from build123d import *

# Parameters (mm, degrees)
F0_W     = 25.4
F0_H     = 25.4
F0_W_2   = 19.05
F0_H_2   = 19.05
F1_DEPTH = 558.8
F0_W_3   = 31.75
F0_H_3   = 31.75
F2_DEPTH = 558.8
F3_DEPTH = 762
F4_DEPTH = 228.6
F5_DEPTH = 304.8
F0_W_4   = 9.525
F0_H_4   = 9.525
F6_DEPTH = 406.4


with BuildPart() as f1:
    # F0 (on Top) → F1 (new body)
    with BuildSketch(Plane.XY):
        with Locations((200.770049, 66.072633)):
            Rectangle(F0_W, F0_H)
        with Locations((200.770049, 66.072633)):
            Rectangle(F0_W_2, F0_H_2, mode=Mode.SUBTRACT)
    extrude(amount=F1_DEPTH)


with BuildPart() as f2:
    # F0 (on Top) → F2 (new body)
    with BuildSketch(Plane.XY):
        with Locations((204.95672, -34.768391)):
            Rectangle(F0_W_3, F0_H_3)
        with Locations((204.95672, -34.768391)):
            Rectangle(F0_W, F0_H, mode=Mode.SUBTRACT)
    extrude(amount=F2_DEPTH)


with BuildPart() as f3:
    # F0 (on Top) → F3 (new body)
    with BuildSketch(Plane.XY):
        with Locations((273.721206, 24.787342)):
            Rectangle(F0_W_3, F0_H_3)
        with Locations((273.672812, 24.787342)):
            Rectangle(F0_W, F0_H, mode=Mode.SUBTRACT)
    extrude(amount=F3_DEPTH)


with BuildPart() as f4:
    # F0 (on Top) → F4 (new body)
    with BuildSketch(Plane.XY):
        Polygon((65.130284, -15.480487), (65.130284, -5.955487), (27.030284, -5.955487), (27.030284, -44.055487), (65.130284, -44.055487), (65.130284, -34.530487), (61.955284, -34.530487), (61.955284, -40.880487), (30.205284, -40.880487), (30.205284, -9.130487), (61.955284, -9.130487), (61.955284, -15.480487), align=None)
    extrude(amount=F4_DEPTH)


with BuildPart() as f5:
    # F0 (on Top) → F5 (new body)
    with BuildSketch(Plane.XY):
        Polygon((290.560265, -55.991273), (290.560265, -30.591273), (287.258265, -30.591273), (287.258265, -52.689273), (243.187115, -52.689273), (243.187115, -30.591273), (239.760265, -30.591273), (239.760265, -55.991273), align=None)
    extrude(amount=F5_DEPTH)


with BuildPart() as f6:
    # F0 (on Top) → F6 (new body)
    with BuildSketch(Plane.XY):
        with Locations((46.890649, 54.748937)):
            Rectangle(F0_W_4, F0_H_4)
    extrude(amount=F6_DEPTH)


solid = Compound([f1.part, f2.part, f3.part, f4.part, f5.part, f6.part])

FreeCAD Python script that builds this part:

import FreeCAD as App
import Part
import Sketcher

V = App.Vector
Q = App.Units.Quantity

doc = App.newDocument("Part")
params = doc.addObject("Spreadsheet::Sheet", "Params")
for row, (alias, value) in enumerate([
    ("sketch1_width", "1 in"),
    ("sketch1_width2", "0.75 in"),
    ("pad1_length", "22 in"),
    ("sketch2_width", "1 in"),
    ("sketch2_width2", "1.25 in"),
    ("pad2_length", "22 in"),
    ("sketch3_width", "1 in"),
    ("sketch3_width2", "1.25 in"),
    ("pad3_length", "30 in"),
    ("sketch4_width", "1.5 in"),
    ("sketch4_width2", "1.25 in"),
    ("sketch4_width3", "0.125 in"),
    ("pad4_length", "9 in"),
    ("sketch5_width", "2 in"),
    ("sketch5_height", "1 in"),
    ("sketch5_width2", "0.13 in"),
    ("sketch5_height2", "0.87 in"),
    ("pad5_length", "12 in"),
    ("sketch6_width", "0.375 in"),
    ("pad6_length", "16 in"),
], start=1):
    params.set(f"A{row}", alias)
    params.set(f"B{row}", "=" + value)
    params.setAlias(f"B{row}", alias)

body = doc.addObject("PartDesign::Body", "Body")

# Sketch on XY plane
sketch1 = body.newObject("Sketcher::SketchObject", "Sketch")
sketch1.AttachmentSupport = (doc.getObject("XY_Plane"), [""])
sketch1.MapMode = "FlatFace"
sketch1.addGeometry(Part.LineSegment(V(188, 79, 0), V(188, 53, 0)), False)
sketch1.addGeometry(Part.LineSegment(V(188, 53, 0), V(213, 53, 0)), False)
sketch1.addGeometry(Part.LineSegment(V(213, 53, 0), V(213, 79, 0)), False)
sketch1.addGeometry(Part.LineSegment(V(213, 79, 0), V(188, 79, 0)), False)
sketch1.addGeometry(Part.LineSegment(V(210, 57, 0), V(191, 57, 0)), False)
sketch1.addGeometry(Part.LineSegment(V(191, 57, 0), V(191, 76, 0)), False)
sketch1.addGeometry(Part.LineSegment(V(191, 76, 0), V(210, 76, 0)), False)
sketch1.addGeometry(Part.LineSegment(V(210, 76, 0), V(210, 57, 0)), False)
sketch1.addConstraint(Sketcher.Constraint("Coincident", 0, 2, 1, 1))
sketch1.addConstraint(Sketcher.Constraint("Coincident", 1, 2, 2, 1))
sketch1.addConstraint(Sketcher.Constraint("Coincident", 2, 2, 3, 1))
sketch1.addConstraint(Sketcher.Constraint("Coincident", 3, 2, 0, 1))
sketch1.addConstraint(Sketcher.Constraint("Coincident", 4, 2, 5, 1))
sketch1.addConstraint(Sketcher.Constraint("Coincident", 5, 2, 6, 1))
sketch1.addConstraint(Sketcher.Constraint("Coincident", 6, 2, 7, 1))
sketch1.addConstraint(Sketcher.Constraint("Coincident", 7, 2, 4, 1))
sketch1.addConstraint(Sketcher.Constraint("Vertical", 0))
sketch1.addConstraint(Sketcher.Constraint("Horizontal", 1))
sketch1.addConstraint(Sketcher.Constraint("Vertical", 2))
sketch1.addConstraint(Sketcher.Constraint("Horizontal", 3))
sketch1.addConstraint(Sketcher.Constraint("Horizontal", 4))
sketch1.addConstraint(Sketcher.Constraint("Vertical", 5))
sketch1.addConstraint(Sketcher.Constraint("Horizontal", 6))
sketch1.addConstraint(Sketcher.Constraint("Vertical", 7))
sketch1.addConstraint(Sketcher.Constraint("Equal", 3, 0))
sketch1.addConstraint(Sketcher.Constraint("Equal", 6, 5))
sketch1.addConstraint(Sketcher.Constraint("DistanceX", 1, 1, 1, 2, Q("1 in")))
sketch1.addConstraint(Sketcher.Constraint("DistanceX", 4, 2, 4, 1, Q("0.75 in")))
sketch1.addConstraint(Sketcher.Constraint("DistanceX", 0, 2, 4, 2, Q("0.125 in")))
sketch1.addConstraint(Sketcher.Constraint("DistanceY", 0, 2, 4, 2, Q("0.125 in")))
sketch1.addConstraint(Sketcher.Constraint("DistanceX", -1, 1, 0, 2, Q("188.070049 mm")))
sketch1.addConstraint(Sketcher.Constraint("DistanceY", -1, 1, 0, 2, Q("53.372633 mm")))
sketch1.setExpression("Constraints[18]", "Params.sketch1_width")
sketch1.setExpression("Constraints[19]", "Params.sketch1_width2")
pad1 = body.newObject("PartDesign::Pad", "Pad")
pad1.Profile = sketch1
pad1.setExpression("Length", "Params.pad1_length")
body2 = doc.addObject("PartDesign::Body", "Body001")

# Sketch on XY plane
sketch2 = body2.newObject("Sketcher::SketchObject", "Sketch001")
sketch2.AttachmentSupport = (doc.getObject("XY_Plane001"), [""])
sketch2.MapMode = "FlatFace"
sketch2.addGeometry(Part.LineSegment(V(189, -19, 0), V(189, -51, 0)), False)
sketch2.addGeometry(Part.LineSegment(V(189, -51, 0), V(221, -51, 0)), False)
sketch2.addGeometry(Part.LineSegment(V(221, -51, 0), V(221, -19, 0)), False)
sketch2.addGeometry(Part.LineSegment(V(221, -19, 0), V(189, -19, 0)), False)
sketch2.addGeometry(Part.LineSegment(V(218, -47, 0), V(192, -47, 0)), False)
sketch2.addGeometry(Part.LineSegment(V(192, -47, 0), V(192, -22, 0)), False)
sketch2.addGeometry(Part.LineSegment(V(192, -22, 0), V(218, -22, 0)), False)
sketch2.addGeometry(Part.LineSegment(V(218, -22, 0), V(218, -47, 0)), False)
sketch2.addConstraint(Sketcher.Constraint("Coincident", 0, 2, 1, 1))
sketch2.addConstraint(Sketcher.Constraint("Coincident", 1, 2, 2, 1))
sketch2.addConstraint(Sketcher.Constraint("Coincident", 2, 2, 3, 1))
sketch2.addConstraint(Sketcher.Constraint("Coincident", 3, 2, 0, 1))
sketch2.addConstraint(Sketcher.Constraint("Coincident", 4, 2, 5, 1))
sketch2.addConstraint(Sketcher.Constraint("Coincident", 5, 2, 6, 1))
sketch2.addConstraint(Sketcher.Constraint("Coincident", 6, 2, 7, 1))
sketch2.addConstraint(Sketcher.Constraint("Coincident", 7, 2, 4, 1))
sketch2.addConstraint(Sketcher.Constraint("Vertical", 0))
sketch2.addConstraint(Sketcher.Constraint("Horizontal", 1))
sketch2.addConstraint(Sketcher.Constraint("Vertical", 2))
sketch2.addConstraint(Sketcher.Constraint("Horizontal", 3))
sketch2.addConstraint(Sketcher.Constraint("Horizontal", 4))
sketch2.addConstraint(Sketcher.Constraint("Vertical", 5))
sketch2.addConstraint(Sketcher.Constraint("Horizontal", 6))
sketch2.addConstraint(Sketcher.Constraint("Vertical", 7))
sketch2.addConstraint(Sketcher.Constraint("Equal", 3, 0))
sketch2.addConstraint(Sketcher.Constraint("Equal", 6, 5))
sketch2.addConstraint(Sketcher.Constraint("DistanceX", 4, 2, 4, 1, Q("1 in")))
sketch2.addConstraint(Sketcher.Constraint("DistanceX", 1, 1, 1, 2, Q("1.25 in")))
sketch2.addConstraint(Sketcher.Constraint("DistanceX", 0, 2, 4, 2, Q("0.125 in")))
sketch2.addConstraint(Sketcher.Constraint("DistanceY", 0, 2, 4, 2, Q("0.125 in")))
sketch2.addConstraint(Sketcher.Constraint("DistanceX", -1, 1, 0, 2, Q("189.08172 mm")))
sketch2.addConstraint(Sketcher.Constraint("DistanceY", 0, 2, -1, 1, Q("50.643391 mm")))
sketch2.setExpression("Constraints[18]", "Params.sketch2_width")
sketch2.setExpression("Constraints[19]", "Params.sketch2_width2")
pad2 = body2.newObject("PartDesign::Pad", "Pad001")
pad2.Profile = sketch2
pad2.setExpression("Length", "Params.pad2_length")
body3 = doc.addObject("PartDesign::Body", "Body002")

# Sketch on XY plane
sketch3 = body3.newObject("Sketcher::SketchObject", "Sketch002")
sketch3.AttachmentSupport = (doc.getObject("XY_Plane002"), [""])
sketch3.MapMode = "FlatFace"
sketch3.addGeometry(Part.LineSegment(V(258, 41, 0), V(258, 9, 0)), False)
sketch3.addGeometry(Part.LineSegment(V(258, 9, 0), V(290, 9, 0)), False)
sketch3.addGeometry(Part.LineSegment(V(290, 9, 0), V(290, 41, 0)), False)
sketch3.addGeometry(Part.LineSegment(V(290, 41, 0), V(258, 41, 0)), False)
sketch3.addGeometry(Part.LineSegment(V(286, 12, 0), V(261, 12, 0)), False)
sketch3.addGeometry(Part.LineSegment(V(261, 12, 0), V(261, 37, 0)), False)
sketch3.addGeometry(Part.LineSegment(V(261, 37, 0), V(286, 37, 0)), False)
sketch3.addGeometry(Part.LineSegment(V(286, 37, 0), V(286, 12, 0)), False)
sketch3.addConstraint(Sketcher.Constraint("Coincident", 0, 2, 1, 1))
sketch3.addConstraint(Sketcher.Constraint("Coincident", 1, 2, 2, 1))
sketch3.addConstraint(Sketcher.Constraint("Coincident", 2, 2, 3, 1))
sketch3.addConstraint(Sketcher.Constraint("Coincident", 3, 2, 0, 1))
sketch3.addConstraint(Sketcher.Constraint("Coincident", 4, 2, 5, 1))
sketch3.addConstraint(Sketcher.Constraint("Coincident", 5, 2, 6, 1))
sketch3.addConstraint(Sketcher.Constraint("Coincident", 6, 2, 7, 1))
sketch3.addConstraint(Sketcher.Constraint("Coincident", 7, 2, 4, 1))
sketch3.addConstraint(Sketcher.Constraint("Vertical", 0))
sketch3.addConstraint(Sketcher.Constraint("Horizontal", 1))
sketch3.addConstraint(Sketcher.Constraint("Vertical", 2))
sketch3.addConstraint(Sketcher.Constraint("Horizontal", 3))
sketch3.addConstraint(Sketcher.Constraint("Horizontal", 4))
sketch3.addConstraint(Sketcher.Constraint("Vertical", 5))
sketch3.addConstraint(Sketcher.Constraint("Horizontal", 6))
sketch3.addConstraint(Sketcher.Constraint("Vertical", 7))
sketch3.addConstraint(Sketcher.Constraint("Equal", 3, 0))
sketch3.addConstraint(Sketcher.Constraint("Equal", 6, 5))
sketch3.addConstraint(Sketcher.Constraint("DistanceX", 4, 2, 4, 1, Q("1 in")))
sketch3.addConstraint(Sketcher.Constraint("DistanceX", 1, 1, 1, 2, Q("1.25 in")))
sketch3.addConstraint(Sketcher.Constraint("DistanceY", 0, 2, 4, 2, Q("0.125 in")))
sketch3.addConstraint(Sketcher.Constraint("DistanceX", -1, 1, 4, 2, Q("260.972812 mm")))
sketch3.addConstraint(Sketcher.Constraint("DistanceY", -1, 1, 5, 2, Q("37.487342 mm")))
sketch3.addConstraint(Sketcher.Constraint("DistanceX", -1, 1, 0, 2, Q("257.846206 mm")))
sketch3.setExpression("Constraints[18]", "Params.sketch3_width")
sketch3.setExpression("Constraints[19]", "Params.sketch3_width2")
pad3 = body3.newObject("PartDesign::Pad", "Pad002")
pad3.Profile = sketch3
pad3.setExpression("Length", "Params.pad3_length")
body4 = doc.addObject("PartDesign::Body", "Body003")

# Sketch on XY plane
sketch4 = body4.newObject("Sketcher::SketchObject", "Sketch003")
sketch4.AttachmentSupport = (doc.getObject("XY_Plane003"), [""])
sketch4.MapMode = "FlatFace"
sketch4.addGeometry(Part.LineSegment(V(65.1, -15.5, 0), V(65.1, -6, 0)), False)
sketch4.addGeometry(Part.LineSegment(V(65.1, -6, 0), V(27, -6, 0)), False)
sketch4.addGeometry(Part.LineSegment(V(27, -6, 0), V(27, -44.1, 0)), False)
sketch4.addGeometry(Part.LineSegment(V(27, -44.1, 0), V(65.1, -44.1, 0)), False)
sketch4.addGeometry(Part.LineSegment(V(65.1, -44.1, 0), V(65.1, -34.5, 0)), False)
sketch4.addGeometry(Part.LineSegment(V(65.1, -34.5, 0), V(62, -34.5, 0)), False)
sketch4.addGeometry(Part.LineSegment(V(62, -34.5, 0), V(62, -40.9, 0)), False)
sketch4.addGeometry(Part.LineSegment(V(62, -40.9, 0), V(30.2, -40.9, 0)), False)
sketch4.addGeometry(Part.LineSegment(V(30.2, -40.9, 0), V(30.2, -9.1, 0)), False)
sketch4.addGeometry(Part.LineSegment(V(30.2, -9.1, 0), V(62, -9.1, 0)), False)
sketch4.addGeometry(Part.LineSegment(V(62, -9.1, 0), V(62, -15.5, 0)), False)
sketch4.addGeometry(Part.LineSegment(V(62, -15.5, 0), V(65.1, -15.5, 0)), False)
sketch4.addConstraint(Sketcher.Constraint("Coincident", 0, 2, 1, 1))
sketch4.addConstraint(Sketcher.Constraint("Coincident", 1, 2, 2, 1))
sketch4.addConstraint(Sketcher.Constraint("Coincident", 2, 2, 3, 1))
sketch4.addConstraint(Sketcher.Constraint("Coincident", 3, 2, 4, 1))
sketch4.addConstraint(Sketcher.Constraint("Coincident", 4, 2, 5, 1))
sketch4.addConstraint(Sketcher.Constraint("Coincident", 5, 2, 6, 1))
sketch4.addConstraint(Sketcher.Constraint("Coincident", 6, 2, 7, 1))
sketch4.addConstraint(Sketcher.Constraint("Coincident", 7, 2, 8, 1))
sketch4.addConstraint(Sketcher.Constraint("Coincident", 8, 2, 9, 1))
sketch4.addConstraint(Sketcher.Constraint("Coincident", 9, 2, 10, 1))
sketch4.addConstraint(Sketcher.Constraint("Coincident", 10, 2, 11, 1))
sketch4.addConstraint(Sketcher.Constraint("Coincident", 11, 2, 0, 1))
sketch4.addConstraint(Sketcher.Constraint("Vertical", 0))
sketch4.addConstraint(Sketcher.Constraint("Horizontal", 1))
sketch4.addConstraint(Sketcher.Constraint("Vertical", 2))
sketch4.addConstraint(Sketcher.Constraint("Horizontal", 3))
sketch4.addConstraint(Sketcher.Constraint("Vertical", 4))
sketch4.addConstraint(Sketcher.Constraint("Horizontal", 5))
sketch4.addConstraint(Sketcher.Constraint("Vertical", 6))
sketch4.addConstraint(Sketcher.Constraint("Horizontal", 7))
sketch4.addConstraint(Sketcher.Constraint("Vertical", 8))
sketch4.addConstraint(Sketcher.Constraint("Horizontal", 9))
sketch4.addConstraint(Sketcher.Constraint("Vertical", 10))
sketch4.addConstraint(Sketcher.Constraint("Horizontal", 11))
sketch4.addConstraint(Sketcher.Constraint("Vertical", 0, 2, 3, 2))
sketch4.addConstraint(Sketcher.Constraint("Vertical", 6, 2, 9, 2))
sketch4.addConstraint(Sketcher.Constraint("Equal", 3, 2))
sketch4.addConstraint(Sketcher.Constraint("Equal", 0, 4))
sketch4.addConstraint(Sketcher.Constraint("Equal", 9, 8))
sketch4.addConstraint(Sketcher.Constraint("Equal", 6, 10))
sketch4.addConstraint(Sketcher.Constraint("DistanceX", 1, 2, 1, 1, Q("1.5 in")))
sketch4.addConstraint(Sketcher.Constraint("DistanceY", 5, 2, 8, 2, Q("1 in")))
sketch4.addConstraint(Sketcher.Constraint("DistanceX", 7, 2, 7, 1, Q("1.25 in")))
sketch4.addConstraint(Sketcher.Constraint("DistanceX", 5, 2, 5, 1, Q("0.125 in")))
sketch4.addConstraint(Sketcher.Constraint("DistanceX", -1, 1, 0, 2, Q("65.130284 mm")))
sketch4.addConstraint(Sketcher.Constraint("DistanceY", 0, 2, -1, 1, Q("5.955487 mm")))
sketch4.setExpression("Constraints[30]", "Params.sketch4_width")
sketch4.setExpression("Constraints[32]", "Params.sketch4_width2")
sketch4.setExpression("Constraints[33]", "Params.sketch4_width3")
pad4 = body4.newObject("PartDesign::Pad", "Pad003")
pad4.Profile = sketch4
pad4.setExpression("Length", "Params.pad4_length")
body5 = doc.addObject("PartDesign::Body", "Body004")

# Sketch on XY plane
sketch5 = body5.newObject("Sketcher::SketchObject", "Sketch004")
sketch5.AttachmentSupport = (doc.getObject("XY_Plane004"), [""])
sketch5.MapMode = "FlatFace"
sketch5.addGeometry(Part.LineSegment(V(290.6, -56, 0), V(290.6, -30.6, 0)), False)
sketch5.addGeometry(Part.LineSegment(V(290.6, -30.6, 0), V(287.3, -30.6, 0)), False)
sketch5.addGeometry(Part.LineSegment(V(287.3, -30.6, 0), V(287.3, -52.7, 0)), False)
sketch5.addGeometry(Part.LineSegment(V(287.3, -52.7, 0), V(243.2, -52.7, 0)), False)
sketch5.addGeometry(Part.LineSegment(V(243.2, -52.7, 0), V(243.2, -30.6, 0)), False)
sketch5.addGeometry(Part.LineSegment(V(243.2, -30.6, 0), V(239.8, -30.6, 0)), False)
sketch5.addGeometry(Part.LineSegment(V(239.8, -30.6, 0), V(239.8, -56, 0)), False)
sketch5.addGeometry(Part.LineSegment(V(239.8, -56, 0), V(290.6, -56, 0)), False)
sketch5.addConstraint(Sketcher.Constraint("Coincident", 0, 2, 1, 1))
sketch5.addConstraint(Sketcher.Constraint("Coincident", 1, 2, 2, 1))
sketch5.addConstraint(Sketcher.Constraint("Coincident", 2, 2, 3, 1))
sketch5.addConstraint(Sketcher.Constraint("Coincident", 3, 2, 4, 1))
sketch5.addConstraint(Sketcher.Constraint("Coincident", 4, 2, 5, 1))
sketch5.addConstraint(Sketcher.Constraint("Coincident", 5, 2, 6, 1))
sketch5.addConstraint(Sketcher.Constraint("Coincident", 6, 2, 7, 1))
sketch5.addConstraint(Sketcher.Constraint("Coincident", 7, 2, 0, 1))
sketch5.addConstraint(Sketcher.Constraint("Vertical", 0))
sketch5.addConstraint(Sketcher.Constraint("Horizontal", 1))
sketch5.addConstraint(Sketcher.Constraint("Vertical", 2))
sketch5.addConstraint(Sketcher.Constraint("Horizontal", 3))
sketch5.addConstraint(Sketcher.Constraint("Vertical", 4))
sketch5.addConstraint(Sketcher.Constraint("Horizontal", 5))
sketch5.addConstraint(Sketcher.Constraint("Vertical", 6))
sketch5.addConstraint(Sketcher.Constraint("Horizontal", 7))
sketch5.addConstraint(Sketcher.Constraint("Horizontal", 1, 2, 4, 2))
sketch5.addConstraint(Sketcher.Constraint("DistanceX", 7, 1, 7, 2, Q("2 in")))
sketch5.addConstraint(Sketcher.Constraint("DistanceY", 0, 1, 0, 2, Q("1 in")))
sketch5.addConstraint(Sketcher.Constraint("DistanceX", 1, 2, 1, 1, Q("0.13 in")))
sketch5.addConstraint(Sketcher.Constraint("DistanceY", 2, 2, 2, 1, Q("0.87 in")))
sketch5.addConstraint(Sketcher.Constraint("DistanceX", 3, 2, 3, 1, Q("44.07115 mm")))
sketch5.addConstraint(Sketcher.Constraint("DistanceX", -1, 1, 0, 2, Q("290.560265 mm")))
sketch5.addConstraint(Sketcher.Constraint("DistanceY", 0, 2, -1, 1, Q("30.591273 mm")))
sketch5.setExpression("Constraints[17]", "Params.sketch5_width")
sketch5.setExpression("Constraints[18]", "Params.sketch5_height")
sketch5.setExpression("Constraints[19]", "Params.sketch5_width2")
sketch5.setExpression("Constraints[20]", "Params.sketch5_height2")
pad5 = body5.newObject("PartDesign::Pad", "Pad004")
pad5.Profile = sketch5
pad5.setExpression("Length", "Params.pad5_length")
body6 = doc.addObject("PartDesign::Body", "Body005")

# Sketch on XY plane
sketch6 = body6.newObject("Sketcher::SketchObject", "Sketch005")
sketch6.AttachmentSupport = (doc.getObject("XY_Plane005"), [""])
sketch6.MapMode = "FlatFace"
sketch6.addGeometry(Part.LineSegment(V(42, 60, 0), V(42, 50, 0)), False)
sketch6.addGeometry(Part.LineSegment(V(42, 50, 0), V(52, 50, 0)), False)
sketch6.addGeometry(Part.LineSegment(V(52, 50, 0), V(52, 60, 0)), False)
sketch6.addGeometry(Part.LineSegment(V(52, 60, 0), V(42, 60, 0)), False)
sketch6.addConstraint(Sketcher.Constraint("Coincident", 0, 2, 1, 1))
sketch6.addConstraint(Sketcher.Constraint("Coincident", 1, 2, 2, 1))
sketch6.addConstraint(Sketcher.Constraint("Coincident", 2, 2, 3, 1))
sketch6.addConstraint(Sketcher.Constraint("Coincident", 3, 2, 0, 1))
sketch6.addConstraint(Sketcher.Constraint("Vertical", 0))
sketch6.addConstraint(Sketcher.Constraint("Horizontal", 1))
sketch6.addConstraint(Sketcher.Constraint("Vertical", 2))
sketch6.addConstraint(Sketcher.Constraint("Horizontal", 3))
sketch6.addConstraint(Sketcher.Constraint("Equal", 3, 0))
sketch6.addConstraint(Sketcher.Constraint("DistanceX", 1, 1, 1, 2, Q("0.375 in")))
sketch6.addConstraint(Sketcher.Constraint("DistanceX", -1, 1, 0, 2, Q("42.128149 mm")))
sketch6.addConstraint(Sketcher.Constraint("DistanceY", -1, 1, 0, 2, Q("49.986437 mm")))
sketch6.setExpression("Constraints[9]", "Params.sketch6_width")
pad6 = body6.newObject("PartDesign::Pad", "Pad005")
pad6.Profile = sketch6
pad6.setExpression("Length", "Params.pad6_length")

doc.recompute()
